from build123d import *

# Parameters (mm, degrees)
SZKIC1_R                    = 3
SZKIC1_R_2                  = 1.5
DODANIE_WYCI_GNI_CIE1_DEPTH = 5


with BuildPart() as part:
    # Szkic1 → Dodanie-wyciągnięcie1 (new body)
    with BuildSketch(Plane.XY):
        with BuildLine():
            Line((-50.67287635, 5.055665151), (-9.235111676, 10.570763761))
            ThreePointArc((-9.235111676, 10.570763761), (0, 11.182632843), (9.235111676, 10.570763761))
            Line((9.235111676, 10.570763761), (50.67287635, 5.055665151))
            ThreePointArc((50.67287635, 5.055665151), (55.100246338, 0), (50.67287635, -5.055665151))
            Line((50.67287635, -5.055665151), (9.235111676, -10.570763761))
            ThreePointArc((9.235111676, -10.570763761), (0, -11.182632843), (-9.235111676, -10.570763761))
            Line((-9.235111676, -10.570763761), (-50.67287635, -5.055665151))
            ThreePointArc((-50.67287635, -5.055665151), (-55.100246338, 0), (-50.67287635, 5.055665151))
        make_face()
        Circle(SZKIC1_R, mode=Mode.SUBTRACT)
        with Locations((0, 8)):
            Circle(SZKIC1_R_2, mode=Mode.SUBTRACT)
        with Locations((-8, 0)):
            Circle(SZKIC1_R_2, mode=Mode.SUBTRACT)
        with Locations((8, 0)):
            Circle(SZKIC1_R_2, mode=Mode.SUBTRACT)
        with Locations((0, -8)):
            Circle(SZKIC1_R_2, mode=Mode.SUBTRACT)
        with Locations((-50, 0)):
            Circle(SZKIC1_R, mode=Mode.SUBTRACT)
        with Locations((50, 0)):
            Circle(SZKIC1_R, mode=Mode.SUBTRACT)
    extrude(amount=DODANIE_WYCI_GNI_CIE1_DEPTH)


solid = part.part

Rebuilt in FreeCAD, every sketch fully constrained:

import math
import FreeCAD as App
import Part
import Sketcher

V = App.Vector
Q = App.Units.Quantity

doc = App.newDocument("Part")
body = doc.addObject("PartDesign::Body", "Body")

sketch1 = doc.addObject("Sketcher::SketchObject", "Sketch")
body.addObject(sketch1)
sketch1.AttachmentSupport = (doc.XY_Plane, [""])
sketch1.MapMode = "FlatFace"
sketch1.addGeometry([
    Part.LineSegment(V(-9.2, 10.6, 0), V(-50.7, 5.1, 0)),
    Part.ArcOfCircle(Part.Circle(V(-50, 0, 0), V(0, 0, 1), 5.1), math.radians(98), math.radians(262)),
    Part.LineSegment(V(-50.7, -5.1, 0), V(-9.2, -10.6, 0)),
    Part.ArcOfCircle(Part.Circle(V(0, 58.8, 0), V(0, 0, 1), 70), math.radians(-97.58), math.radians(-82.42)),
    Part.LineSegment(V(9.2, -10.6, 0), V(50.7, -5.1, 0)),
    Part.ArcOfCircle(Part.Circle(V(50, 0, 0), V(0, 0, 1), 5.1), math.radians(-82), math.radians(82)),
    Part.LineSegment(V(50.7, 5.1, 0), V(9.2, 10.6, 0)),
    Part.ArcOfCircle(Part.Circle(V(0, -58.8, 0), V(0, 0, 1), 70), math.radians(82.42), math.radians(97.58)),
    Part.Circle(V(0, -8, 0), V(0, 0, 1), 1.5),
    Part.Circle(V(50, 0, 0), V(0, 0, 1), 3),
    Part.Circle(V(8, 0, 0), V(0, 0, 1), 1.5),
    Part.Circle(V(0, 0, 0), V(0, 0, 1), 3),
    Part.Circle(V(-8, 0, 0), V(0, 0, 1), 1.5),
    Part.Circle(V(-50, 0, 0), V(0, 0, 1), 3),
    Part.Circle(V(0, 8, 0), V(0, 0, 1), 1.5),
], False)
sketch1.addConstraint([
    Sketcher.Constraint("Tangent", 0, 2, 1, 1),
    Sketcher.Constraint("Tangent", 1, 2, 2, 1),
    Sketcher.Constraint("Tangent", 2, 2, 3, 1),
    Sketcher.Constraint("Tangent", 3, 2, 4, 1),
    Sketcher.Constraint("Tangent", 4, 2, 5, 1),
    Sketcher.Constraint("Tangent", 5, 2, 6, 1),
    Sketcher.Constraint("Tangent", 6, 2, 7, 1),
    Sketcher.Constraint("Tangent", 7, 2, 0, 1),
    Sketcher.Constraint("Coincident", 11, 3, -1, 1),
    Sketcher.Constraint("Coincident", 9, 3, 5, 3),
    Sketcher.Constraint("Coincident", 13, 3, 1, 3),
    Sketcher.Constraint("Equal", 1, 5),
    Sketcher.Constraint("Equal", 3, 7),
    Sketcher.Constraint("Equal", 8, 10),
    Sketcher.Constraint("Equal", 9, 11),
    Sketcher.Constraint("Equal", 10, 12),
    Sketcher.Constraint("Equal", 11, 13),
    Sketcher.Constraint("Equal", 12, 14),
    Sketcher.Constraint("Symmetric", 1, 3, 5, 3, -1, 1),
    Sketcher.Constraint("Symmetric", 3, 3, 7, 3, -1, 1),
    Sketcher.Constraint("Symmetric", 10, 3, 12, 3, -1, 1),
    Sketcher.Constraint("Symmetric", 8, 3, 14, 3, -1, 1),
    Sketcher.Constraint("Symmetric", 2, 2, 3, 2, -2),
    Sketcher.Constraint("PointOnObject", 8, 3, -2),
    Sketcher.Constraint("PointOnObject", 10, 3, -1),
    Sketcher.Constraint("Diameter", 8, Q("3 mm")),
    Sketcher.Constraint("Diameter", 9, Q("6 mm")),
    Sketcher.Constraint("Radius", 3, Q("70 mm")),
    Sketcher.Constraint("DistanceX", 1, 3, -1, 1, Q("50 mm")),
    Sketcher.Constraint("DistanceY", 8, 3, -1, 1, Q("8 mm")),
    Sketcher.Constraint("DistanceX", -1, 1, 10, 3, Q("8 mm")),
    Sketcher.Constraint("Radius", 1, Q("5.100246 mm")),
    Sketcher.Constraint("DistanceY", 3, 2, 4, 2, Q("5.515099 mm")),
])
pad1 = doc.addObject("PartDesign::Pad", "Pad")
body.addObject(pad1)
pad1.Profile = sketch1
pad1.Length = 5

doc.recompute()
